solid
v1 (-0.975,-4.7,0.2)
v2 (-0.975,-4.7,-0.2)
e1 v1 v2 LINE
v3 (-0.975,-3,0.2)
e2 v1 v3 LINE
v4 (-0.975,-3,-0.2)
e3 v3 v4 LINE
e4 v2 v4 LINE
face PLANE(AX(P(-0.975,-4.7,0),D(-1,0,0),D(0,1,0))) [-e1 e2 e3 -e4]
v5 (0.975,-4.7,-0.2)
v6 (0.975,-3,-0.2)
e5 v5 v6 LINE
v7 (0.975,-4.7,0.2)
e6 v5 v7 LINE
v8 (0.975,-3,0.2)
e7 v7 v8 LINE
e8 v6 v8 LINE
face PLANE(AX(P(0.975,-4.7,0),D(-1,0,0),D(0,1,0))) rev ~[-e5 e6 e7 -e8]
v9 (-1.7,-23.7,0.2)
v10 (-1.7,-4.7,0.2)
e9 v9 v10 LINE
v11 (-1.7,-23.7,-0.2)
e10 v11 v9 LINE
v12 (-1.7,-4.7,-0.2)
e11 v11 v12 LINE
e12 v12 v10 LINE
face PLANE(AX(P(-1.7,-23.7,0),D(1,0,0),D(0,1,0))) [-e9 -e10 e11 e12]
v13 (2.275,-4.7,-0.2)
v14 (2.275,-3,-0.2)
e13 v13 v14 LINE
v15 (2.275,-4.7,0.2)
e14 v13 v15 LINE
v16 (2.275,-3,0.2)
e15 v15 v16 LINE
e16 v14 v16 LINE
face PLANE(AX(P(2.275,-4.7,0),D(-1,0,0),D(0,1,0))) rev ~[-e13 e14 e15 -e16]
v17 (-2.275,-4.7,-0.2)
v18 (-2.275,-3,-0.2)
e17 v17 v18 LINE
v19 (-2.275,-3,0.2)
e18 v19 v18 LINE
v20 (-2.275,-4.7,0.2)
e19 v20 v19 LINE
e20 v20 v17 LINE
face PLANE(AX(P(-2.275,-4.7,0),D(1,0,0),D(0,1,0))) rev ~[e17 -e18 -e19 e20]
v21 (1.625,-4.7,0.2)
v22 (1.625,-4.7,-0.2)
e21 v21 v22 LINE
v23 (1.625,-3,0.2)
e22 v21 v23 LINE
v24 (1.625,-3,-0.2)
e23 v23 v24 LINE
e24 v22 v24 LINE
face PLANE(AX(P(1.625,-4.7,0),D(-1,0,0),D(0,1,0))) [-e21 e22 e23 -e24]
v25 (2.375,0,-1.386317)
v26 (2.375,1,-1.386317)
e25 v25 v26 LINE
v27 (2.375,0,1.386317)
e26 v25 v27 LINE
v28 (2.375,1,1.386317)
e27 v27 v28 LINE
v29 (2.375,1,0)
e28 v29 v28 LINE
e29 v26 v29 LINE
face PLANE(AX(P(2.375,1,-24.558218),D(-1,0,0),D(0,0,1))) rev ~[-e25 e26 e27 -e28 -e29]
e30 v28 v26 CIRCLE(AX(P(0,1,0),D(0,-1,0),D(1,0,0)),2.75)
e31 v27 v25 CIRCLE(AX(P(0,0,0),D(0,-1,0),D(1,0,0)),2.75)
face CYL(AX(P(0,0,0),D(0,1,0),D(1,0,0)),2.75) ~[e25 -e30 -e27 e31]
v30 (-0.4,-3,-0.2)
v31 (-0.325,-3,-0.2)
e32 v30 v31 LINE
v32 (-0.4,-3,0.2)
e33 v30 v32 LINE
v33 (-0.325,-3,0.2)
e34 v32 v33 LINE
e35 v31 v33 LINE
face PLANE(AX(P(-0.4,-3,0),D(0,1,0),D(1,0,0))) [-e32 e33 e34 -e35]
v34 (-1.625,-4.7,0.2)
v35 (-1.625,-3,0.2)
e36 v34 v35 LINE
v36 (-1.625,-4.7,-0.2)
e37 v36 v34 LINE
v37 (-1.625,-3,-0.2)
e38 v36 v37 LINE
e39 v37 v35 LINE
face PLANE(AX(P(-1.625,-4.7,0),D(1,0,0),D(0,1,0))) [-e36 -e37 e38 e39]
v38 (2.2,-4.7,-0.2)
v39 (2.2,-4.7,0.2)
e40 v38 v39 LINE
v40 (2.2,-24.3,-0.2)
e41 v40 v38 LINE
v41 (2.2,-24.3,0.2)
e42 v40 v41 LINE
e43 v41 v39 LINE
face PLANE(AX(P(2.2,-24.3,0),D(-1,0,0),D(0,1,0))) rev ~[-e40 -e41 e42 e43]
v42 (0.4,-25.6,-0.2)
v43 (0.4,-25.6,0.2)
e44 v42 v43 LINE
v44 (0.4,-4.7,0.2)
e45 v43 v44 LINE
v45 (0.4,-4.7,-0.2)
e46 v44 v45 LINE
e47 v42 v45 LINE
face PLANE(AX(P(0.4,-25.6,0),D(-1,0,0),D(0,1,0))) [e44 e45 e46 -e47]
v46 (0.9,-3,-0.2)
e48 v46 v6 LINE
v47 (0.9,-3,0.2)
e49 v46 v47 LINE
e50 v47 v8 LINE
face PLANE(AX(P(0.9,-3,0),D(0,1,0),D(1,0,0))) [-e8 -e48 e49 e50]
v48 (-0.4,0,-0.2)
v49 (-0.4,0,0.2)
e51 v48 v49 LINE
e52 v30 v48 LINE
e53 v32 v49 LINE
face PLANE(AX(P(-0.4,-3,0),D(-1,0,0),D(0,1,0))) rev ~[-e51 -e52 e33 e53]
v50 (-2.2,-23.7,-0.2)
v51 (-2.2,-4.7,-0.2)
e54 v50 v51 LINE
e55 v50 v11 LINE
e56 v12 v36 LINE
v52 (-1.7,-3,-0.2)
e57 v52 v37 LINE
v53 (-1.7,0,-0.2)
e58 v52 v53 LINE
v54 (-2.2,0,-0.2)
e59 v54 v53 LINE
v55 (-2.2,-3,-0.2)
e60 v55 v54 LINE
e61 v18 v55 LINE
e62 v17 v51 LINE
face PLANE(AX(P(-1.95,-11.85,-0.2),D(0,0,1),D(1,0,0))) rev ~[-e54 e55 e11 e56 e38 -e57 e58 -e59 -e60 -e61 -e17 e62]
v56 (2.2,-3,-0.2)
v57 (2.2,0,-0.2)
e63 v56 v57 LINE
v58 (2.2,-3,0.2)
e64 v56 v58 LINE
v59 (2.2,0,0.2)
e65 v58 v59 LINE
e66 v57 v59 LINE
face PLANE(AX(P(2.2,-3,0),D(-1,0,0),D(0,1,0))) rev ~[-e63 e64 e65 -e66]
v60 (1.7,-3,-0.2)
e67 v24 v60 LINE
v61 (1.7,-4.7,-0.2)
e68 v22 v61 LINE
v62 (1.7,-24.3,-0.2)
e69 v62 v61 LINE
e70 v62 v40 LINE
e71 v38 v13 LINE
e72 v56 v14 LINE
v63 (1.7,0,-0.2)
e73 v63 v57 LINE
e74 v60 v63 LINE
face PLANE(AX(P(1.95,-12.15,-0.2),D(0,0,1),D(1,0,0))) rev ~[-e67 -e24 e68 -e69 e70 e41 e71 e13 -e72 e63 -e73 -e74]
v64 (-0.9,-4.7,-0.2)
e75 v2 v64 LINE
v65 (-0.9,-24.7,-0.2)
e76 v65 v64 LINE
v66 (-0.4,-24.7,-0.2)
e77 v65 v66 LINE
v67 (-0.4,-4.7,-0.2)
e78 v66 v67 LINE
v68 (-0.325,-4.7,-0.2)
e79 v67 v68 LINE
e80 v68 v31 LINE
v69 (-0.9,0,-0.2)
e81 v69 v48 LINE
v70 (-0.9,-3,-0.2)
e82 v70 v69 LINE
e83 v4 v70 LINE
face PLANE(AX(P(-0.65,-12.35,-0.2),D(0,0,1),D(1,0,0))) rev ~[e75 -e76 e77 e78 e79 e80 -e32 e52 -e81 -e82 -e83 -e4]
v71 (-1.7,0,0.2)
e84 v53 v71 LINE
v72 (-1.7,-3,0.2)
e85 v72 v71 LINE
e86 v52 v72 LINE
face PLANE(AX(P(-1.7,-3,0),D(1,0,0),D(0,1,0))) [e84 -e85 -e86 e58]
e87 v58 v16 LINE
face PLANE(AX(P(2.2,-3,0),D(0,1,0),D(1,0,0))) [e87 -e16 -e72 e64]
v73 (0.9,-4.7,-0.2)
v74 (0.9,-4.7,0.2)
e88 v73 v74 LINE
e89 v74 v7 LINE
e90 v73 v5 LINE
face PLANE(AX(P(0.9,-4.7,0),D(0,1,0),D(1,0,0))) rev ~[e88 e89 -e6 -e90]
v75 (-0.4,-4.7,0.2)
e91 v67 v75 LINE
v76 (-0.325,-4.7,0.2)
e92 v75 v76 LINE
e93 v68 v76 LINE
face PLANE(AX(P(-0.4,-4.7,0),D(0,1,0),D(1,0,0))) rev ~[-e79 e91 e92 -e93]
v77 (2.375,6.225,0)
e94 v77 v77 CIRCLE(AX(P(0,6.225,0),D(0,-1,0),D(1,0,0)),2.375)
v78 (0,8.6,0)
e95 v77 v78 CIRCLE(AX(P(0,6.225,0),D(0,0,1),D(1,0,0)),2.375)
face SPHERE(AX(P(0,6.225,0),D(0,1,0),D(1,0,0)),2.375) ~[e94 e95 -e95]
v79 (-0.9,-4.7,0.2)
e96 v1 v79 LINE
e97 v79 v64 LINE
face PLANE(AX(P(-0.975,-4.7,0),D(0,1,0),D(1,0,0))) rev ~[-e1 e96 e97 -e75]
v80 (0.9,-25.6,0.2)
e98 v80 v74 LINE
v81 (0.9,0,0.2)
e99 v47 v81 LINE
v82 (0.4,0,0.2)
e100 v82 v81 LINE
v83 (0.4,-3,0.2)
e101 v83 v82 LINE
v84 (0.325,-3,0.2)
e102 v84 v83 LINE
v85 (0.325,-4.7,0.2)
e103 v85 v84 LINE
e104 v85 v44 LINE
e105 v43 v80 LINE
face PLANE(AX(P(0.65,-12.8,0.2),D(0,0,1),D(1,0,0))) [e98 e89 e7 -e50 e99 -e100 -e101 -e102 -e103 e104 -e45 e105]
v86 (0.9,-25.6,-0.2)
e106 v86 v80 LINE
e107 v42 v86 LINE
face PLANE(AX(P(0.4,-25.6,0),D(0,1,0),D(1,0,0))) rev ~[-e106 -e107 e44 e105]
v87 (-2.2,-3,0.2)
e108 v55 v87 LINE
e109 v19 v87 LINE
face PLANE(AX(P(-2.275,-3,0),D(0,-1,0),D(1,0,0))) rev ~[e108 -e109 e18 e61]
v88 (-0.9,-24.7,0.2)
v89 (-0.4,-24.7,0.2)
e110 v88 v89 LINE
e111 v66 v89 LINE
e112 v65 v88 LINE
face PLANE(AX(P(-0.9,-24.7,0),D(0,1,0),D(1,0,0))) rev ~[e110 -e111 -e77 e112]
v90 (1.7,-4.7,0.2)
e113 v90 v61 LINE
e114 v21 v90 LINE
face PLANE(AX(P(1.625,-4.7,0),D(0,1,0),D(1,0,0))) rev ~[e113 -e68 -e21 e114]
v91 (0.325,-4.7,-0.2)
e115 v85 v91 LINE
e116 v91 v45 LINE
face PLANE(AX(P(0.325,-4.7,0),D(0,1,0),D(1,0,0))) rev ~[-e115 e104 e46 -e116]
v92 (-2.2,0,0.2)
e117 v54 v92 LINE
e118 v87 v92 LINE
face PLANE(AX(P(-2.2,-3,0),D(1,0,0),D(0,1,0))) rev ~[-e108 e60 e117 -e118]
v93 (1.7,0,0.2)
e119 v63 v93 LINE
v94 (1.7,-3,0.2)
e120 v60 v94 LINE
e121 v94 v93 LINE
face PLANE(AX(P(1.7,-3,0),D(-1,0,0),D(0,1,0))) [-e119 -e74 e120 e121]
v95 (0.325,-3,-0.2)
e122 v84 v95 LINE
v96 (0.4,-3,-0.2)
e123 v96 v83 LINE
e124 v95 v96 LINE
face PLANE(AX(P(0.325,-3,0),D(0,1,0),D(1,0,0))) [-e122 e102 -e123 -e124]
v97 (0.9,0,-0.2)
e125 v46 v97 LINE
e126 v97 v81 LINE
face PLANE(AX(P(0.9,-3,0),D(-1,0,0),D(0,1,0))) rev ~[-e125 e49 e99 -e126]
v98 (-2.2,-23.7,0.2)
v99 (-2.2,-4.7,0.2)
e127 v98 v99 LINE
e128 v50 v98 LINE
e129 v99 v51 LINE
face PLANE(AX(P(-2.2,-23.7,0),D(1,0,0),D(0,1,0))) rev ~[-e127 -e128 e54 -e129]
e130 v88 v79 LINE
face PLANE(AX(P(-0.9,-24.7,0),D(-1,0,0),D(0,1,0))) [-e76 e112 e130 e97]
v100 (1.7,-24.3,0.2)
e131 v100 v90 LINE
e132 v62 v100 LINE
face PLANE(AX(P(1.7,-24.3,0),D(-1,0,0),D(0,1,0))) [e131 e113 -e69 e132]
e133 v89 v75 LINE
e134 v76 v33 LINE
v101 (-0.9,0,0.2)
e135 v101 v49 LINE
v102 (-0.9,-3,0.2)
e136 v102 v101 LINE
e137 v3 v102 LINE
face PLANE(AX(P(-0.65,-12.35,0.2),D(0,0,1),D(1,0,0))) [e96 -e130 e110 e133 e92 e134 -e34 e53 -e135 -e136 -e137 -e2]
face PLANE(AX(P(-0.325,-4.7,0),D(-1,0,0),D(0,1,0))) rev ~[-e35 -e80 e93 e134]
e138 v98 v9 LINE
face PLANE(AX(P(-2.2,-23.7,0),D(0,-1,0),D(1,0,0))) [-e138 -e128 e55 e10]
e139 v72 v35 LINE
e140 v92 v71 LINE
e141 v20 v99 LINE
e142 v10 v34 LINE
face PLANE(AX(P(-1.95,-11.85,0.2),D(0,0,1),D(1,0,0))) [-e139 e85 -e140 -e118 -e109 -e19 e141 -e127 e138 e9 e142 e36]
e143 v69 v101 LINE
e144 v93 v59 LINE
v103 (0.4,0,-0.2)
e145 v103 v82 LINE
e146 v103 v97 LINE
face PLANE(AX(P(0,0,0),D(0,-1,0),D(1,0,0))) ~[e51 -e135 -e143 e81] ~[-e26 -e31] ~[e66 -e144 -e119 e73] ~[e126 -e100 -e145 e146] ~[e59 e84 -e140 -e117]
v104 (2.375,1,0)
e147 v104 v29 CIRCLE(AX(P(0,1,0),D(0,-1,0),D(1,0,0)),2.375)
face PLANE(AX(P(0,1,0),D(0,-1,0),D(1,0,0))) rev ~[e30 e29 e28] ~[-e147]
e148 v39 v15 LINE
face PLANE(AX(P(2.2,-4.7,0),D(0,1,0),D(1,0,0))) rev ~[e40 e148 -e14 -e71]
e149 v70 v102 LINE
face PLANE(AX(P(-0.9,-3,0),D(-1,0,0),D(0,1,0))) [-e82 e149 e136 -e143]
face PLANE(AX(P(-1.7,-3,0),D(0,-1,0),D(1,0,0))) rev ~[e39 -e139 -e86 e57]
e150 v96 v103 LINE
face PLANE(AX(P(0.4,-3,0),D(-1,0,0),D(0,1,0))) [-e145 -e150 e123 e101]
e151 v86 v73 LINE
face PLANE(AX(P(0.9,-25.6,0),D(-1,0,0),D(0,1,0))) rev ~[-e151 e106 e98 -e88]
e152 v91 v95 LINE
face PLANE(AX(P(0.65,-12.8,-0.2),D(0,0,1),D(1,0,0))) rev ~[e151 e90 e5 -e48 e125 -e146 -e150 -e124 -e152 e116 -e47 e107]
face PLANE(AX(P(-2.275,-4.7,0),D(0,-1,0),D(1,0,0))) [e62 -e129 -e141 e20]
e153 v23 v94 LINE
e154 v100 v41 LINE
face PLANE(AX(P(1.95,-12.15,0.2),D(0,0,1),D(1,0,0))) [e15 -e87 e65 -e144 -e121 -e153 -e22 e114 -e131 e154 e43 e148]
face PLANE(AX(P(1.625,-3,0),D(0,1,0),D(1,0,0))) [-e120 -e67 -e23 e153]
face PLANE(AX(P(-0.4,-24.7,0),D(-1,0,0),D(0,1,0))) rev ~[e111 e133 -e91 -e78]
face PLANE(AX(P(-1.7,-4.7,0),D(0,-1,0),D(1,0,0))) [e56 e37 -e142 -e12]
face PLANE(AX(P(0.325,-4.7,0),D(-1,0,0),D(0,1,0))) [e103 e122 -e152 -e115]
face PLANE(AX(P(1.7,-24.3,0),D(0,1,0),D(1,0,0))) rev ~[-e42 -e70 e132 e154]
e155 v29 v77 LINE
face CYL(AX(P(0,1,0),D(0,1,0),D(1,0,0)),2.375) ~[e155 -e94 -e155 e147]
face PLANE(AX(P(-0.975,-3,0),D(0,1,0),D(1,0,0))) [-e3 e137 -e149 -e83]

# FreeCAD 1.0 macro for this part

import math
import FreeCAD as App
import Part
import Sketcher

V = App.Vector
Q = App.Units.Quantity


def add_polygon(sketch, points):
    """Adds a closed chain of lines whose ends are joined by coincident constraints."""
    first, n = sketch.GeometryCount, len(points)
    for a, b in zip(points, points[1:] + points[:1]):
        sketch.addGeometry(Part.LineSegment(App.Vector(*a, 0), App.Vector(*b, 0)), False)
    for i in range(n):
        sketch.addConstraint(Sketcher.Constraint("Coincident", first + i, 2, first + (i + 1) % n, 1))

doc = App.newDocument("Part")
body = doc.addObject("PartDesign::Body", "Body")

# Sketch on XY plane
sketch1 = body.newObject("Sketcher::SketchObject", "Sketch")
sketch1.AttachmentSupport = (doc.getObject("XY_Plane"), [""])
sketch1.MapMode = "FlatFace"
sketch1.addGeometry([
    Part.LineSegment(V(0, 0, 0), V(2.75, 0, 0)),  # 0
    Part.LineSegment(V(2.75, 0, 0), V(2.75, 1, 0)),  # 1
    Part.LineSegment(V(2.75, 1, 0), V(2.38, 1, 0)),  # 2
    Part.LineSegment(V(2.38, 1, 0), V(2.38, 6.22, 0)),  # 3
    Part.ArcOfCircle(Part.Circle(V(0, 6.22, 0), V(0, 0, 1), 2.38), math.radians(0), math.radians(90)),  # 4
    Part.LineSegment(V(0, 8.6, 0), V(0, 0, 0)),  # 5
], False)
sketch1.addConstraint([
    Sketcher.Constraint("Coincident", 0, 2, 1, 1),
    Sketcher.Constraint("Coincident", 1, 2, 2, 1),
    Sketcher.Constraint("Coincident", 2, 2, 3, 1),
    Sketcher.Constraint("Tangent", 3, 2, 4, 1),
    Sketcher.Constraint("Coincident", 4, 2, 5, 1),
    Sketcher.Constraint("Coincident", 5, 2, 0, 1),
    Sketcher.Constraint("Horizontal", 0),
    Sketcher.Constraint("Vertical", 1),
    Sketcher.Constraint("Horizontal", 2),
    Sketcher.Constraint("Vertical", 3),
    Sketcher.Constraint("Vertical", 5),
    Sketcher.Constraint("Coincident", 5, 2, -1, 1),
    Sketcher.Constraint("PointOnObject", 4, 3, -2),
    Sketcher.Constraint("DistanceY", 1, 1, 1, 2, Q("1 mm")),
    Sketcher.Constraint("DistanceY", 5, 2, 5, 1, Q("8.6 mm")),
    Sketcher.Constraint("Radius", 4, Q("2.375 mm")),
    Sketcher.Constraint("DistanceX", 0, 1, 0, 2, Q("2.75 mm")),
])
revolution = body.newObject("PartDesign::Revolution", "Revolution")
revolution.Profile = sketch1
revolution.ReferenceAxis = (sketch1, ["V_Axis"])
revolution.Angle = 360

# Sketch on XY plane
sketch2 = body.newObject("Sketcher::SketchObject", "Sketch001")
sketch2.AttachmentSupport = (doc.getObject("XY_Plane"), [""])
sketch2.MapMode = "FlatFace"
add_polygon(sketch2, [(1.7, -4.7), (1.7, -24.3), (2.2, -24.3), (2.2, -4.7), (2.27, -4.7), (2.27, -3), (2.2, -3), (2.2, 0), (1.7, 0), (1.7, -3), (1.62, -3), (1.62, -4.7)])  # lines 0-11
add_polygon(sketch2, [(0.4, -4.7), (0.4, -25.6), (0.9, -25.6), (0.9, -4.7), (0.97, -4.7), (0.97, -3), (0.9, -3), (0.9, 0), (0.4, 0), (0.4, -3), (0.33, -3), (0.33, -4.7)])  # lines 12-23
add_polygon(sketch2, [(-0.9, -4.7), (-0.9, -24.7), (-0.4, -24.7), (-0.4, -4.7), (-0.33, -4.7), (-0.33, -3), (-0.4, -3), (-0.4, 0), (-0.9, 0), (-0.9, -3), (-0.97, -3), (-0.97, -4.7)])  # lines 24-35
add_polygon(sketch2, [(-2.2, -4.7), (-2.2, -23.7), (-1.7, -23.7), (-1.7, -4.7), (-1.62, -4.7), (-1.62, -3), (-1.7, -3), (-1.7, 0), (-2.2, 0), (-2.2, -3), (-2.27, -3), (-2.27, -4.7)])  # lines 36-47
sketch2.addConstraint([
    Sketcher.Constraint("Vertical", 0),
    Sketcher.Constraint("Horizontal", 1),
    Sketcher.Constraint("Vertical", 2),
    Sketcher.Constraint("Horizontal", 3),
    Sketcher.Constraint("Vertical", 4),
    Sketcher.Constraint("Horizontal", 5),
    Sketcher.Constraint("Vertical", 6),
    Sketcher.Constraint("Horizontal", 7),
    Sketcher.Constraint("Vertical", 8),
    Sketcher.Constraint("Horizontal", 9),
    Sketcher.Constraint("Vertical", 10),
    Sketcher.Constraint("Horizontal", 11),
    Sketcher.Constraint("Vertical", 12),
    Sketcher.Constraint("Horizontal", 13),
    Sketcher.Constraint("Vertical", 14),
    Sketcher.Constraint("Horizontal", 15),
    Sketcher.Constraint("Vertical", 16),
    Sketcher.Constraint("Horizontal", 17),
    Sketcher.Constraint("Vertical", 18),
    Sketcher.Constraint("Horizontal", 19),
    Sketcher.Constraint("Vertical", 20),
    Sketcher.Constraint("Horizontal", 21),
    Sketcher.Constraint("Vertical", 22),
    Sketcher.Constraint("Horizontal", 23),
    Sketcher.Constraint("Vertical", 24),
    Sketcher.Constraint("Horizontal", 25),
    Sketcher.Constraint("Vertical", 26),
    Sketcher.Constraint("Horizontal", 27),
    Sketcher.Constraint("Vertical", 28),
    Sketcher.Constraint("Horizontal", 29),
    Sketcher.Constraint("Vertical", 30),
    Sketcher.Constraint("Horizontal", 31),
    Sketcher.Constraint("Vertical", 32),
    Sketcher.Constraint("Horizontal", 33),
    Sketcher.Constraint("Vertical", 34),
    Sketcher.Constraint("Horizontal", 35),
    Sketcher.Constraint("Vertical", 36),
    Sketcher.Constraint("Horizontal", 37),
    Sketcher.Constraint("Vertical", 38),
    Sketcher.Constraint("Horizontal", 39),
    Sketcher.Constraint("Vertical", 40),
    Sketcher.Constraint("Horizontal", 41),
    Sketcher.Constraint("Vertical", 42),
    Sketcher.Constraint("Horizontal", 43),
    Sketcher.Constraint("Vertical", 44),
    Sketcher.Constraint("Horizontal", 45),
    Sketcher.Constraint("Vertical", 46),
    Sketcher.Constraint("Horizontal", 47),
    Sketcher.Constraint("Symmetric", 19, 2, 30, 2, -1, 1),
    Sketcher.Constraint("Symmetric", 7, 2, 42, 2, -1, 1),
    Sketcher.Constraint("Symmetric", 23, 2, 26, 2, -2),
    Sketcher.Constraint("Symmetric", 21, 2, 28, 2, -2),
    Sketcher.Constraint("Symmetric", 18, 2, 31, 2, -2),
    Sketcher.Constraint("Symmetric", 16, 2, 33, 2, -2),
    Sketcher.Constraint("Symmetric", 14, 2, 35, 2, -2),
    Sketcher.Constraint("Symmetric", 11, 2, 38, 2, -2),
    Sketcher.Constraint("Symmetric", 9, 2, 40, 2, -2),
    Sketcher.Constraint("Symmetric", 6, 2, 43, 2, -2),
    Sketcher.Constraint("Symmetric", 4, 2, 45, 2, -2),
    Sketcher.Constraint("Symmetric", 2, 2, 47, 2, -2),
    Sketcher.Constraint("Horizontal", 5, 2, 8, 2),
    Sketcher.Constraint("Horizontal", 3, 2, 10, 2),
    Sketcher.Constraint("Horizontal", 11, 2, 14, 2),
    Sketcher.Constraint("Horizontal", 9, 2, 16, 2),
    Sketcher.Constraint("Horizontal", 17, 2, 20, 2),
    Sketcher.Constraint("Horizontal", 15, 2, 22, 2),
    Sketcher.Constraint("Vertical", 2, 2, 5, 2),
    Sketcher.Constraint("Vertical", 0, 2, 7, 2),
    Sketcher.Constraint("Vertical", 14, 2, 17, 2),
    Sketcher.Constraint("Vertical", 12, 2, 19, 2),
    Sketcher.Constraint("Equal", 5, 9),
    Sketcher.Constraint("Equal", 7, 13),
    Sketcher.Constraint("Equal", 11, 15),
    Sketcher.Constraint("Equal", 17, 21),
    Sketcher.Constraint("DistanceY", 6, 1, 6, 2, Q("3 mm")),
    Sketcher.Constraint("DistanceY", 24, 2, 24, 1, Q("20 mm")),
    Sketcher.Constraint("DistanceY", 36, 2, 36, 1, Q("19 mm")),
    Sketcher.Constraint("DistanceX", 1, 1, 1, 2, Q("0.5 mm")),
    Sketcher.Constraint("DistanceY", 0, 2, 0, 1, Q("19.6 mm")),
    Sketcher.Constraint("DistanceY", 4, 1, 4, 2, Q("1.7 mm")),
    Sketcher.Constraint("DistanceY", 12, 2, 12, 1, Q("20.9 mm")),
    Sketcher.Constraint("DistanceX", -1, 1, 0, 2, Q("1.7 mm")),
    Sketcher.Constraint("DistanceX", -1, 1, 12, 2, Q("0.4 mm")),
    Sketcher.Constraint("DistanceX", 3, 1, 3, 2, Q("0.075 mm")),
])
pad1 = body.newObject("PartDesign::Pad", "Pad")
pad1.Profile = sketch2
pad1.Length = 0.4
pad1.Midplane = True

# Sketch on XZ plane
sketch3 = body.newObject("Sketcher::SketchObject", "Sketch002")
sketch3.AttachmentSupport = (doc.getObject("XZ_Plane"), [""])
sketch3.MapMode = "FlatFace"
sketch3.AttachmentOffset = App.Placement(V(0, 0, -1), App.Rotation())
add_polygon(sketch3, [(2, -25), (2, 25), (49, 25), (49, -25)])  # lines 0-3
sketch3.addConstraint([
    Sketcher.Constraint("Vertical", 0),
    Sketcher.Constraint("Horizontal", 1),
    Sketcher.Constraint("Vertical", 2),
    Sketcher.Constraint("Horizontal", 3),
    Sketcher.Constraint("DistanceX", 1, 1, 1, 2, Q("46.343802 mm")),
    Sketcher.Constraint("DistanceX", -1, 1, 0, 2, Q("2.375 mm")),
    Sketcher.Constraint("DistanceY", 0, 1, 0, 2, Q("49.116436 mm")),
    Sketcher.Constraint("DistanceY", -1, 1, 0, 2, Q("24.558218 mm")),
])
pocket1 = body.newObject("PartDesign::Pocket", "Pocket")
pocket1.Profile = sketch3
pocket1.Type = "ThroughAll"
pocket1.Reversed = True

doc.recompute()
